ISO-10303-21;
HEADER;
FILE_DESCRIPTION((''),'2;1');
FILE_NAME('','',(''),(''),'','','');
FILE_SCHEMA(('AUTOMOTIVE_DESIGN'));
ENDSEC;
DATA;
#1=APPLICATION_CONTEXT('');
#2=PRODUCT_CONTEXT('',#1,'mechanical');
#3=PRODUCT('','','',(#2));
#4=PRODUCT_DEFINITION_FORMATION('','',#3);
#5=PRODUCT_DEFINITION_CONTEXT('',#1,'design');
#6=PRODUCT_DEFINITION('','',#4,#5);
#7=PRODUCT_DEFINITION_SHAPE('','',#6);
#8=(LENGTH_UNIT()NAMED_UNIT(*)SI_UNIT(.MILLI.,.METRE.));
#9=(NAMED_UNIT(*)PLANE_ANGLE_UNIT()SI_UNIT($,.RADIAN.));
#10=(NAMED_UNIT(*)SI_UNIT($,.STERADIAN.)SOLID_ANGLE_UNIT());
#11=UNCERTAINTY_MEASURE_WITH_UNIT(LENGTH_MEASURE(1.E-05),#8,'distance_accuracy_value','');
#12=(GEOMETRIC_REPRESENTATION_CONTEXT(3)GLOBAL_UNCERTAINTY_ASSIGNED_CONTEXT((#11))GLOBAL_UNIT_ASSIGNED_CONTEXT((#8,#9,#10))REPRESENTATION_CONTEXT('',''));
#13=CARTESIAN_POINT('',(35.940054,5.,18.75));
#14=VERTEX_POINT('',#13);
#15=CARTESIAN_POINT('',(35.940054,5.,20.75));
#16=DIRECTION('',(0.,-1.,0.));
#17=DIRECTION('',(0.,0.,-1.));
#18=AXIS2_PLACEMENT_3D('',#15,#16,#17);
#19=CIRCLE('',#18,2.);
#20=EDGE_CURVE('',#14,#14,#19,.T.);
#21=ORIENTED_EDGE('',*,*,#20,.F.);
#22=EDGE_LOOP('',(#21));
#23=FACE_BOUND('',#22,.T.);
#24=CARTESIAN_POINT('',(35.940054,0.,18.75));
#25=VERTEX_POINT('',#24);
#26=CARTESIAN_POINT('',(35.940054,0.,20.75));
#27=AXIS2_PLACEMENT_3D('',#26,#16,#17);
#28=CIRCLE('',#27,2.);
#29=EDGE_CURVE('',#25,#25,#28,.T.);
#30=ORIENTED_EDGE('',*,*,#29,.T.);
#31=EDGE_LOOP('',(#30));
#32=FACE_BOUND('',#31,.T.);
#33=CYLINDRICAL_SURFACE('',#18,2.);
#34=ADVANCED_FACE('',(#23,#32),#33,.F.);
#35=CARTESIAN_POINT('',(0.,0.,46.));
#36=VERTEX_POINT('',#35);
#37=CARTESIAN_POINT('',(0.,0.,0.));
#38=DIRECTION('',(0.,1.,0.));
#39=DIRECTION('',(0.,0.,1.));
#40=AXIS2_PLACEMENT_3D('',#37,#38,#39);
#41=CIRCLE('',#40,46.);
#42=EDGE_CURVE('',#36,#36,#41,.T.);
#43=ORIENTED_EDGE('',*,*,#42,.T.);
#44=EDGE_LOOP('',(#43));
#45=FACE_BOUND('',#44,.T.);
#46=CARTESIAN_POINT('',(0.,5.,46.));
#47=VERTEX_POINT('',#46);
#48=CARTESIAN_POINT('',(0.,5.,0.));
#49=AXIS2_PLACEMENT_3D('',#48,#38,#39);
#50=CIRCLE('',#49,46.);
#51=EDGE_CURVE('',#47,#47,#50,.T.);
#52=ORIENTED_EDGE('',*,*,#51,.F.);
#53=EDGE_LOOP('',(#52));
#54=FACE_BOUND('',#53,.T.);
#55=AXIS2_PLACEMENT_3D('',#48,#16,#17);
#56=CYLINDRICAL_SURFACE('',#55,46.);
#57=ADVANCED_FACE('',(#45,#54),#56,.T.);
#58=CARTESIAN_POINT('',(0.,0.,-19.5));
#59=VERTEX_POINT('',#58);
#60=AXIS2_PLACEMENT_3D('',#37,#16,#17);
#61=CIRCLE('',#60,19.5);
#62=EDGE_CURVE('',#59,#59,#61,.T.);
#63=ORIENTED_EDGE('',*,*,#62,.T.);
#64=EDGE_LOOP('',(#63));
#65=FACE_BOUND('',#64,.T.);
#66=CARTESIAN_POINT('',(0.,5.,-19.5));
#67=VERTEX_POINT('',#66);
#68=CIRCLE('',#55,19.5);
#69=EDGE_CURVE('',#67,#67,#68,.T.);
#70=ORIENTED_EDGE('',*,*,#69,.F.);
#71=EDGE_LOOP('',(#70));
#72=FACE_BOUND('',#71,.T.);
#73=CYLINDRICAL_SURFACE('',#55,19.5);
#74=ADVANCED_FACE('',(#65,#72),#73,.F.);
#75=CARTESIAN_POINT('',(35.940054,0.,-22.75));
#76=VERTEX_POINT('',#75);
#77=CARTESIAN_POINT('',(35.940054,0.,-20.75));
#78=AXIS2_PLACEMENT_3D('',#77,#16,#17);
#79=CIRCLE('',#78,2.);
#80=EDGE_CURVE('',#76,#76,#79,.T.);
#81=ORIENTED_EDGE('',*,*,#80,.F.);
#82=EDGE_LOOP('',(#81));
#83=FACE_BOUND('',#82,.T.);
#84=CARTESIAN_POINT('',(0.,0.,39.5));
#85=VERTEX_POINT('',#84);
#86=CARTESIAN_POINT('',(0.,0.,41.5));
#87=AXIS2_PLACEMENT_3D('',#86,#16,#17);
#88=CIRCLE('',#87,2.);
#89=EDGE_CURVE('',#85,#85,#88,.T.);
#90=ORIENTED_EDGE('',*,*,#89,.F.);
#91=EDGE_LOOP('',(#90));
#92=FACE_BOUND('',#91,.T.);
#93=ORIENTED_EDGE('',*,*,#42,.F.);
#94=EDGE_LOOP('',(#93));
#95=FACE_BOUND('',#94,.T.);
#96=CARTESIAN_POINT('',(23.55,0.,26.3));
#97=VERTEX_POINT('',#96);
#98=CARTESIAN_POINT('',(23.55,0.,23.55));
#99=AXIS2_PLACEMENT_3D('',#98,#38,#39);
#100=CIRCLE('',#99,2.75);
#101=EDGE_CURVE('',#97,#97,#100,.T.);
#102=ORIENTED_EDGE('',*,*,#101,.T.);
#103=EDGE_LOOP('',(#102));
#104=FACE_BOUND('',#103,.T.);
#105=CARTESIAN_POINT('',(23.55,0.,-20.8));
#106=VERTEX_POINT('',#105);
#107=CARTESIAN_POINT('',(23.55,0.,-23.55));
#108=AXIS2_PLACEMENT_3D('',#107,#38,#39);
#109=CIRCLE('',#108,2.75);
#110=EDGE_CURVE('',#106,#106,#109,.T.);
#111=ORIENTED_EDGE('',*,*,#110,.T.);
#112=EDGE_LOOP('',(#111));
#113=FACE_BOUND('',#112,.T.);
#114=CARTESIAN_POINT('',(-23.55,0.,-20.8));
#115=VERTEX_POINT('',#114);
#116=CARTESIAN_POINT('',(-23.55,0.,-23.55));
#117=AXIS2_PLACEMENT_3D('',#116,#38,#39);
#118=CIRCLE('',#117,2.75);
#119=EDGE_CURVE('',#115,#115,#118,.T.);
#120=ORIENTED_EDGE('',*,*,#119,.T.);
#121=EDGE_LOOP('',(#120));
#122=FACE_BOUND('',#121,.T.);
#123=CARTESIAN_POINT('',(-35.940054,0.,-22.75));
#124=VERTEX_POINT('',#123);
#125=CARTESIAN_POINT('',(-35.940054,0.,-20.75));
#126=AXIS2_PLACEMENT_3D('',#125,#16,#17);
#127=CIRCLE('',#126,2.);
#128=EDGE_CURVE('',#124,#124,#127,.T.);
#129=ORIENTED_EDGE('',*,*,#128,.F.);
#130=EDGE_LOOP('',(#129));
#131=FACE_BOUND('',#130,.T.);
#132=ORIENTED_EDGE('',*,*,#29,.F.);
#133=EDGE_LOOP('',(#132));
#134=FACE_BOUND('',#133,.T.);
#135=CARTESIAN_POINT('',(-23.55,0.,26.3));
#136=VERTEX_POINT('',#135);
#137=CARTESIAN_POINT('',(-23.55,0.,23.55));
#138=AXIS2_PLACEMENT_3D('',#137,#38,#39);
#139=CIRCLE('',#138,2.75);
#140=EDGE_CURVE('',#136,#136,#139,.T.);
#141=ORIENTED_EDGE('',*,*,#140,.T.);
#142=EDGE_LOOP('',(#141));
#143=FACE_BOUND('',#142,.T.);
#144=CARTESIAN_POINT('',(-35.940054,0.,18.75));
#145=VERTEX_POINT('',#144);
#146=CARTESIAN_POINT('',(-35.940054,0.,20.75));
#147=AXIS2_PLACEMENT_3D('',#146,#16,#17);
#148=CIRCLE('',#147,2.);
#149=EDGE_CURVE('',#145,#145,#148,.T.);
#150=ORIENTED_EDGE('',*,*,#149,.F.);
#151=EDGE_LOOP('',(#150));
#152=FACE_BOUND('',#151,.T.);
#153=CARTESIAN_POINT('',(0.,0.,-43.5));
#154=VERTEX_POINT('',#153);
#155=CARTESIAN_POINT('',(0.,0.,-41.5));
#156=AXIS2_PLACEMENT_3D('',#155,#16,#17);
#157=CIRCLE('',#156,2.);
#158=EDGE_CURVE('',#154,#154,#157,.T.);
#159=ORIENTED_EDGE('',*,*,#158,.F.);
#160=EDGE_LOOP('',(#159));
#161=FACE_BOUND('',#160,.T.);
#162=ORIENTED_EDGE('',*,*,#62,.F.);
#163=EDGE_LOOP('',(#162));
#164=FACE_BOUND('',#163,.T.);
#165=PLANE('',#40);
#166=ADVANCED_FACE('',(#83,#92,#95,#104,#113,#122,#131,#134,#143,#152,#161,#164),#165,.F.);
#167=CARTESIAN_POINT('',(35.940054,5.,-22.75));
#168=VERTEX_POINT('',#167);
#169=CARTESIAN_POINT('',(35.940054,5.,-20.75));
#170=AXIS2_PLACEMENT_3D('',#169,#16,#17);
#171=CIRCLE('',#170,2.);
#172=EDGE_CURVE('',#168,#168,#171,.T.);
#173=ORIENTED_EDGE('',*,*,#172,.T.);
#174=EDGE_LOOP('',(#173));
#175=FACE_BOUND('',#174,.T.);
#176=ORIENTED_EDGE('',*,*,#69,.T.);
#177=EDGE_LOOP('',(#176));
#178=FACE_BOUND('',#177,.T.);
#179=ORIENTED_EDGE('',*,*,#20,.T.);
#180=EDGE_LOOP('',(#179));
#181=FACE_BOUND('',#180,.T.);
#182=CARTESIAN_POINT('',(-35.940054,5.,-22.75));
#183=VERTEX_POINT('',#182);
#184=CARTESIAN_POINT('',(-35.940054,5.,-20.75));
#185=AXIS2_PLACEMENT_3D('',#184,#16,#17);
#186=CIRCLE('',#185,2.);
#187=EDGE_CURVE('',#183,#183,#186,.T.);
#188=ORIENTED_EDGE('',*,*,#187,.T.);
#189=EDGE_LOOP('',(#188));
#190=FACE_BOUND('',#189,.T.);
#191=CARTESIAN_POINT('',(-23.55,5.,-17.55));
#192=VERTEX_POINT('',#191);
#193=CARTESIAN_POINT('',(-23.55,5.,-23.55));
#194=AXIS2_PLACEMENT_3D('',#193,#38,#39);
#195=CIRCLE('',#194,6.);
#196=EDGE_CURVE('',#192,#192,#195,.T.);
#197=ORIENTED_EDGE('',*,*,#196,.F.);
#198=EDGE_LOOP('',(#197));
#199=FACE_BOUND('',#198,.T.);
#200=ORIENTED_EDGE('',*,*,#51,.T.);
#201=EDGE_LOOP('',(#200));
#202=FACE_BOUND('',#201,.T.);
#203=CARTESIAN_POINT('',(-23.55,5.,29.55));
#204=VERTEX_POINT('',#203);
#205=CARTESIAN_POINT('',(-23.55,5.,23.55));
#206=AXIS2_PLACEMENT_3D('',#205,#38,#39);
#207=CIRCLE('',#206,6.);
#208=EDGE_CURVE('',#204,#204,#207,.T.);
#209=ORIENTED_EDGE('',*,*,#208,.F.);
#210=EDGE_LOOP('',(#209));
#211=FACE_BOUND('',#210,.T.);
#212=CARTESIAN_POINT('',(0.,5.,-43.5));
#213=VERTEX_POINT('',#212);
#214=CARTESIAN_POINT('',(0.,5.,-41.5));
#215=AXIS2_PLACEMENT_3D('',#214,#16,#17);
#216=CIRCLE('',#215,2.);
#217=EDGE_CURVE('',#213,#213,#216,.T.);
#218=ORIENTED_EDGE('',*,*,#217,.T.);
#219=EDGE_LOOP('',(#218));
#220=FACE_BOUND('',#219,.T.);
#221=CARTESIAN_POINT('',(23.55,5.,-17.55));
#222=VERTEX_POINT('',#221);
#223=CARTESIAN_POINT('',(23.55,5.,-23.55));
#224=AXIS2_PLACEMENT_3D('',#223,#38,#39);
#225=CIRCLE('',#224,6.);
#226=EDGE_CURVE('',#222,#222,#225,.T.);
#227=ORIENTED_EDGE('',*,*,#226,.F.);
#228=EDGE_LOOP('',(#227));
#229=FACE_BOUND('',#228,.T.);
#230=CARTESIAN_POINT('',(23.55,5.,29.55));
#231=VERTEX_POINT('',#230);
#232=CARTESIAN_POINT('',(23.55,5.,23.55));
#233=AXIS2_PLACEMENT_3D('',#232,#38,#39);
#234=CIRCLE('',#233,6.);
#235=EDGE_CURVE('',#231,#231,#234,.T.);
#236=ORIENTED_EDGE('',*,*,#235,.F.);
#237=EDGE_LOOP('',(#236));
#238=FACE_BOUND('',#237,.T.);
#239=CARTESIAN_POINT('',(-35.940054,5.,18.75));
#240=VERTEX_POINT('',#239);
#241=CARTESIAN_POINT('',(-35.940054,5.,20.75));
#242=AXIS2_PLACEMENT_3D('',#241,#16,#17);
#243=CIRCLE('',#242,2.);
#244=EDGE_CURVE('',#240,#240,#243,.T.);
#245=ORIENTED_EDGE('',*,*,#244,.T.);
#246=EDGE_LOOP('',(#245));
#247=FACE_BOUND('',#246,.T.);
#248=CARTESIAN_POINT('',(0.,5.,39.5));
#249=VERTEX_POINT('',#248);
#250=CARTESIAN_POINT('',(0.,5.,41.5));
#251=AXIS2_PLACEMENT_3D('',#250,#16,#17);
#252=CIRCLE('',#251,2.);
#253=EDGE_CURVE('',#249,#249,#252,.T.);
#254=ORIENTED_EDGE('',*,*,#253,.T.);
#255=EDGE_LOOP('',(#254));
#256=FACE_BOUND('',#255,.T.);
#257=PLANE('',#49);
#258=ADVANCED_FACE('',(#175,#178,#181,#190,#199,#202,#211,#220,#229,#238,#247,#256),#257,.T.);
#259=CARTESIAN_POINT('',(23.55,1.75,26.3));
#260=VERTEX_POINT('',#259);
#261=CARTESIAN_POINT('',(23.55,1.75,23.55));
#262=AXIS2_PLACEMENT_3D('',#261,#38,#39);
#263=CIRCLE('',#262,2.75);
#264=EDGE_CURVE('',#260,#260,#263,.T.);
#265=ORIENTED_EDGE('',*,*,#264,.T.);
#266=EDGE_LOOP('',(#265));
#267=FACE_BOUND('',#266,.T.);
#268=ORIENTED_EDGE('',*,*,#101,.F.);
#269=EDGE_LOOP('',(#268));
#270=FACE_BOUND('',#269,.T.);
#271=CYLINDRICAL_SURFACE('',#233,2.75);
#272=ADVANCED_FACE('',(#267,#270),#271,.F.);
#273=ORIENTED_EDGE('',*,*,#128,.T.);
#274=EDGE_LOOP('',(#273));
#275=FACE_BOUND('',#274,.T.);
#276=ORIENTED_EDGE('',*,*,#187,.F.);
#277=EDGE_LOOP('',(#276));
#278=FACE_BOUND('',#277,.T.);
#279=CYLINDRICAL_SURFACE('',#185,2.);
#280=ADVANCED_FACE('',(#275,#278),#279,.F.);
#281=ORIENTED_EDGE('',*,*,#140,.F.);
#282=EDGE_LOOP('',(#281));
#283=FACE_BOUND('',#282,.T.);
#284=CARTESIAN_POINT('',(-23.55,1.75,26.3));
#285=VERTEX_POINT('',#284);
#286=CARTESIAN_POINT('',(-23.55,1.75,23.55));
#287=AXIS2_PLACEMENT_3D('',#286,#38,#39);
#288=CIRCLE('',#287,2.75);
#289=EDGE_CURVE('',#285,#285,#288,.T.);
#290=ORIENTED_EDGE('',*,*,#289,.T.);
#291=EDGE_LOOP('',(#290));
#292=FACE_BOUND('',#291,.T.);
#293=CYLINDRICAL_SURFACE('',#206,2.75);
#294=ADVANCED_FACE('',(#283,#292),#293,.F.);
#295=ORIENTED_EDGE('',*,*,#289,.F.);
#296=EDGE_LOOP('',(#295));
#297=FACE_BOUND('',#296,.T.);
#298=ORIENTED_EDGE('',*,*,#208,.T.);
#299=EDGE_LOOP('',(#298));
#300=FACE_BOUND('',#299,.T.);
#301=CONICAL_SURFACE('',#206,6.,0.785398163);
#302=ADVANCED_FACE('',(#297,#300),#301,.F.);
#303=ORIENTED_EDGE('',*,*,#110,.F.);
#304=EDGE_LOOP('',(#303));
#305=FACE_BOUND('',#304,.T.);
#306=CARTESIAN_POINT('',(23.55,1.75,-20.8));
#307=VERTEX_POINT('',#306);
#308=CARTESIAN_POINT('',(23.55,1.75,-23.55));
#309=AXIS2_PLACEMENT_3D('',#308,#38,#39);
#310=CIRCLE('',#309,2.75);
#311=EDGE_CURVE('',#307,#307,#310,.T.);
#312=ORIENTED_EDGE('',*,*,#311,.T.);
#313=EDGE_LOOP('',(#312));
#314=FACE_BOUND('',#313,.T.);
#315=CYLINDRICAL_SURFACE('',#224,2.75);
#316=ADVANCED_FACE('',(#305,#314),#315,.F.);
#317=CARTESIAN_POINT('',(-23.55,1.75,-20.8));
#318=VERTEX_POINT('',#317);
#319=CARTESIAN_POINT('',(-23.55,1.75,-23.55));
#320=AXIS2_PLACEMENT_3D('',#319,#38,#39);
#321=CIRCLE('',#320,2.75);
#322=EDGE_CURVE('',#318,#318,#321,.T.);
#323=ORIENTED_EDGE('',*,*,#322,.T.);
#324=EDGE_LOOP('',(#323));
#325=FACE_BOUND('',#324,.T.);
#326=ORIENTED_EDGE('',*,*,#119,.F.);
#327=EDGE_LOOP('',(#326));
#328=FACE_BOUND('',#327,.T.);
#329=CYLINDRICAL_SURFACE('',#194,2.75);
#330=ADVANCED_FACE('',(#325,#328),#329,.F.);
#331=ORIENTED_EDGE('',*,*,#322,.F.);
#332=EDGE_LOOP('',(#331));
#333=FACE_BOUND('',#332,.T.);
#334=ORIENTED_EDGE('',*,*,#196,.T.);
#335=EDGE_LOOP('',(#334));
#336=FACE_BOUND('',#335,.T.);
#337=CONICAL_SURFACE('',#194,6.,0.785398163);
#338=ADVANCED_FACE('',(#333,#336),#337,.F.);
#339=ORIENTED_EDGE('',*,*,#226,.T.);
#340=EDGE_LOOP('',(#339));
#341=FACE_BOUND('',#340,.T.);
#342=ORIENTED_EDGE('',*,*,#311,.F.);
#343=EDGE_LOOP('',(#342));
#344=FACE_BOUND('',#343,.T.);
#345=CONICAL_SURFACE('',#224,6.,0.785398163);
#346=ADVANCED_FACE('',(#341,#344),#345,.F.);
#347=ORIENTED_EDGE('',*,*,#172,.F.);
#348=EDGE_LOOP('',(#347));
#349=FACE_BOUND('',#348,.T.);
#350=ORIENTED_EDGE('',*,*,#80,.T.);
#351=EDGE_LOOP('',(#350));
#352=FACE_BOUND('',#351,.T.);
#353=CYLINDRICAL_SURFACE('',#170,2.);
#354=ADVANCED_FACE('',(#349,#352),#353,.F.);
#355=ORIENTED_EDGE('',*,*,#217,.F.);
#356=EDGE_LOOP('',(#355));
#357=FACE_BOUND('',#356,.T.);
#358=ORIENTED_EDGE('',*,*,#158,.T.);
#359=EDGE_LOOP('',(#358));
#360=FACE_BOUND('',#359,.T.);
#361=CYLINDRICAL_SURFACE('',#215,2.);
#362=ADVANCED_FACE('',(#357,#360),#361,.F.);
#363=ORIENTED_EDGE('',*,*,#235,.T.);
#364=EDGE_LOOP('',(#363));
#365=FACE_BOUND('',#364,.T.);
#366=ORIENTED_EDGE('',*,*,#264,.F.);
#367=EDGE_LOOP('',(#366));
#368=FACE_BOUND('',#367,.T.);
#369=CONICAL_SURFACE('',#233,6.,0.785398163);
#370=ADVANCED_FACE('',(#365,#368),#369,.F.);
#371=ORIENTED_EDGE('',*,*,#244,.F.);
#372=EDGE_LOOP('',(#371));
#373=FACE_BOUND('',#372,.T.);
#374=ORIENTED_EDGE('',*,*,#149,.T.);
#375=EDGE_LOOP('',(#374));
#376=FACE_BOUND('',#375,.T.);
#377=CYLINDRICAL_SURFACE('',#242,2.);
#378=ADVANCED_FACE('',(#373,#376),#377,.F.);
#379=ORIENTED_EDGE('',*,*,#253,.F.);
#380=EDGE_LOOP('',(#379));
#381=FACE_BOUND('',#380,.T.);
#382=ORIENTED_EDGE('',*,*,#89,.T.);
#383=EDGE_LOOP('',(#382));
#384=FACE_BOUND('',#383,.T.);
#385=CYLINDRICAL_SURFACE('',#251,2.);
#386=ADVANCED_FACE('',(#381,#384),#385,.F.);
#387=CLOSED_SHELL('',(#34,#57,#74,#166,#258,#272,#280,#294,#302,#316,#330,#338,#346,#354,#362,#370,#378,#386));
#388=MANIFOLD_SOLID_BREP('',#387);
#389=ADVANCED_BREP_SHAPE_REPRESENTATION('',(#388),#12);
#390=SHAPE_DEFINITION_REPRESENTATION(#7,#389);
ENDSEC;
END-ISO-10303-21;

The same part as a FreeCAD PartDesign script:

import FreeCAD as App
import Part
import Sketcher
from FreeCAD import Vector
Q = App.Units.Quantity


def add_polygon(sketch, points):
    """Adds a closed chain of lines whose ends are joined by coincident constraints."""
    first, n = sketch.GeometryCount, len(points)
    for a, b in zip(points, points[1:] + points[:1]):
        sketch.addGeometry(Part.LineSegment(App.Vector(*a, 0), App.Vector(*b, 0)), False)
    for i in range(n):
        sketch.addConstraint(Sketcher.Constraint("Coincident", first + i, 2, first + (i + 1) % n, 1))

doc = App.newDocument("Part")
params = doc.addObject("Spreadsheet::Sheet", "Params")
for row, (alias, value) in enumerate([
    ("sketch1_diameter", "92 mm"),
    ("sketch1_diameter2", "5 mm"),
    ("pad1_length", "5 mm"),
    ("sketch2_diameter", "4 mm"),
    ("sketch3_diameter", "39 mm"),
    ("sketch4_width", "5 mm"),
    ("sketch4_height", "6 mm"),
    ("sketch4_width2", "1.75 mm"),
    ("groove_angle", "360 deg"),
    ("linearpattern_pitch", "47.1 mm"),
    ("linearpattern2_pitch", "66.609459 mm"),
    ("linearpattern3_pitch", "47.1 mm"),
], start=1):
    params.set(f"A{row}", alias)
    params.set(f"B{row}", "=" + value)
    params.setAlias(f"B{row}", alias)

body = doc.addObject("PartDesign::Body", "Body")

# Sketch on XZ plane
sketch1 = doc.addObject("Sketcher::SketchObject", "Sketch")
body.addObject(sketch1)
sketch1.AttachmentSupport = (doc.XZ_Plane, [""])
sketch1.MapMode = "FlatFace"
sketch1.addGeometry([
    Part.Circle(Vector(0, 0, 0), Vector(0, 0, 1), 46),  # 0
    Part.Circle(Vector(-23.55, -23.55, 0), Vector(0, 0, 1), 2.5),  # 1
    Part.Circle(Vector(-23.55, 23.55, 0), Vector(0, 0, 1), 2.5),  # 2
    Part.Circle(Vector(23.55, -23.55, 0), Vector(0, 0, 1), 2.5),  # 3
    Part.Circle(Vector(23.55, 23.55, 0), Vector(0, 0, 1), 2.5),  # 4
], False)
sketch1.addConstraint([
    Sketcher.Constraint("Coincident", 0, 3, -1, 1),
    Sketcher.Constraint("Equal", 1, 2),
    Sketcher.Constraint("Equal", 2, 3),
    Sketcher.Constraint("Equal", 3, 4),
    Sketcher.Constraint("Symmetric", 2, 3, 3, 3, -1, 1),
    Sketcher.Constraint("Symmetric", 1, 3, 4, 3, -1, 1),
    Sketcher.Constraint("Symmetric", 1, 3, 3, 3, -2),
    Sketcher.Constraint("Diameter", 0, Q("92 mm")),
    Sketcher.Constraint("Diameter", 1, Q("5 mm")),
    Sketcher.Constraint("DistanceY", 1, 3, 2, 3, Q("47.1 mm")),
    Sketcher.Constraint("DistanceX", 1, 3, 3, 3, Q("47.1 mm")),
])
sketch1.setExpression("Constraints[7]", "Params.sketch1_diameter")
sketch1.setExpression("Constraints[8]", "Params.sketch1_diameter2")
pad1 = doc.addObject("PartDesign::Pad", "Pad")
body.addObject(pad1)
pad1.Profile = sketch1
pad1.setExpression("Length", "Params.pad1_length")
pad1.Reversed = True

# Sketch on XZ plane
sketch2 = doc.addObject("Sketcher::SketchObject", "Sketch001")
body.addObject(sketch2)
sketch2.AttachmentSupport = (doc.XZ_Plane, [""])
sketch2.MapMode = "FlatFace"
sketch2.addGeometry([
    Part.Circle(Vector(0, 41.5, 0), Vector(0, 0, 1), 2),  # 0
    Part.Circle(Vector(35.940054, 20.75, 0), Vector(0, 0, 1), 2),  # 1
    Part.Circle(Vector(35.940054, -20.75, 0), Vector(0, 0, 1), 2),  # 2
    Part.Circle(Vector(0, -41.5, 0), Vector(0, 0, 1), 2),  # 3
    Part.Circle(Vector(-35.940054, -20.75, 0), Vector(0, 0, 1), 2),  # 4
    Part.Circle(Vector(-35.940054, 20.75, 0), Vector(0, 0, 1), 2),  # 5
], False)
sketch2.addConstraint([
    Sketcher.Constraint("Equal", 0, 1),
    Sketcher.Constraint("Equal", 1, 2),
    Sketcher.Constraint("Equal", 2, 3),
    Sketcher.Constraint("Equal", 3, 4),
    Sketcher.Constraint("Equal", 4, 5),
    Sketcher.Constraint("Symmetric", 0, 3, 3, 3, -1, 1),
    Sketcher.Constraint("Symmetric", 1, 3, 4, 3, -1, 1),
    Sketcher.Constraint("Symmetric", 2, 3, 5, 3, -1, 1),
    Sketcher.Constraint("Symmetric", 2, 3, 4, 3, -2),
    Sketcher.Constraint("PointOnObject", 0, 3, -2),
    Sketcher.Constraint("Diameter", 0, Q("4 mm")),
    Sketcher.Constraint("DistanceY", 3, 3, 0, 3, Q("83 mm")),
    Sketcher.Constraint("DistanceY", 2, 3, 1, 3, Q("41.5 mm")),
    Sketcher.Constraint("DistanceX", 4, 3, 2, 3, Q("71.880109 mm")),
])
sketch2.setExpression("Constraints[10]", "Params.sketch2_diameter")
pocket1 = doc.addObject("PartDesign::Pocket", "Pocket")
body.addObject(pocket1)
pocket1.Profile = sketch2
pocket1.Type = "ThroughAll"

# Sketch on XZ plane
sketch3 = doc.addObject("Sketcher::SketchObject", "Sketch002")
body.addObject(sketch3)
sketch3.AttachmentSupport = (doc.XZ_Plane, [""])
sketch3.MapMode = "FlatFace"
sketch3.addGeometry(Part.Circle(Vector(0, 0, 0), Vector(0, 0, 1), 19.5), False)
sketch3.addConstraint([
    Sketcher.Constraint("Coincident", 0, 3, -1, 1),
    Sketcher.Constraint("Diameter", 0, Q("39 mm")),
])
sketch3.setExpression("Constraints[1]", "Params.sketch3_diameter")
pocket2 = doc.addObject("PartDesign::Pocket", "Pocket001")
body.addObject(pocket2)
pocket2.Profile = sketch3
pocket2.Type = "ThroughAll"

# Sketch on YZ plane
sketch4 = doc.addObject("Sketcher::SketchObject", "Sketch003")
body.addObject(sketch4)
sketch4.AttachmentSupport = (doc.YZ_Plane, [""])
sketch4.MapMode = "FlatFace"
sketch4.AttachmentOffset = App.Placement(Vector(0, 0, 23.55), App.Rotation())
add_polygon(sketch4, [(0, -23.55), (5, -23.55), (5, -17.55), (1.75, -20.8), (0, -20.8)])  # lines 0-4
sketch4.addGeometry(Part.LineSegment(Vector(5, -23.55, 0), Vector(0, -23.55, 0)), True)  # axis
sketch4.addConstraint([
    Sketcher.Constraint("Horizontal", 0),
    Sketcher.Constraint("Vertical", 1),
    Sketcher.Constraint("Horizontal", 3),
    Sketcher.Constraint("Vertical", 4),
    Sketcher.Constraint("Horizontal", 5),
    Sketcher.Constraint("Coincident", 5, 1, 0, 2),
    Sketcher.Constraint("PointOnObject", 3, 2, -2),
    Sketcher.Constraint("PointOnObject", 5, 2, -2),
    Sketcher.Constraint("DistanceX", 0, 1, 0, 2, Q("5 mm")),
    Sketcher.Constraint("DistanceY", 1, 1, 1, 2, Q("6 mm")),
    Sketcher.Constraint("Angle", 2, Q("-135 deg")),
    Sketcher.Constraint("DistanceX", 3, 2, 3, 1, Q("1.75 mm")),
    Sketcher.Constraint("DistanceY", 2, 2, -1, 1, Q("20.8 mm")),
])
sketch4.setExpression("Constraints[13]", "Params.sketch4_width")
sketch4.setExpression("Constraints[14]", "Params.sketch4_height")
sketch4.setExpression("Constraints[16]", "Params.sketch4_width2")
groove = doc.addObject("PartDesign::Groove", "Groove")
body.addObject(groove)
groove.Profile = sketch4
groove.ReferenceAxis = (sketch4, ["Axis0"])
groove.setExpression("Angle", "Params.groove_angle")
doc.recompute()

linearpattern = doc.addObject("PartDesign::LinearPattern", "LinearPattern")
body.addObject(linearpattern)
linearpattern.Originals = [groove]
linearpattern.Direction = (doc.Z_Axis, [""])
linearpattern.Mode = "offset"
linearpattern.setExpression("Offset", "Params.linearpattern_pitch")
linearpattern.Occurrences = 2
body.Tip = linearpattern
doc.recompute()

datumline = doc.addObject("PartDesign::Line", "DatumLine")
body.addObject(datumline)
datumline.Placement = App.Placement(Vector(0, 0, 0), App.Rotation(Vector(0, 0, 1), Vector(-0.707106781, 0, 0.707106781)))
linearpattern2 = doc.addObject("PartDesign::LinearPattern", "LinearPattern001")
body.addObject(linearpattern2)
linearpattern2.Originals = [groove]
linearpattern2.Direction = (datumline, [""])
linearpattern2.Mode = "offset"
linearpattern2.setExpression("Offset", "Params.linearpattern2_pitch")
linearpattern2.Occurrences = 2
body.Tip = linearpattern2
doc.recompute()

linearpattern3 = doc.addObject("PartDesign::LinearPattern", "LinearPattern002")
body.addObject(linearpattern3)
linearpattern3.Originals = [groove]
linearpattern3.Direction = (doc.X_Axis, [""])
linearpattern3.Mode = "offset"
linearpattern3.setExpression("Offset", "Params.linearpattern3_pitch")
linearpattern3.Occurrences = 2
linearpattern3.Reversed = True
body.Tip = linearpattern3

doc.recompute()
